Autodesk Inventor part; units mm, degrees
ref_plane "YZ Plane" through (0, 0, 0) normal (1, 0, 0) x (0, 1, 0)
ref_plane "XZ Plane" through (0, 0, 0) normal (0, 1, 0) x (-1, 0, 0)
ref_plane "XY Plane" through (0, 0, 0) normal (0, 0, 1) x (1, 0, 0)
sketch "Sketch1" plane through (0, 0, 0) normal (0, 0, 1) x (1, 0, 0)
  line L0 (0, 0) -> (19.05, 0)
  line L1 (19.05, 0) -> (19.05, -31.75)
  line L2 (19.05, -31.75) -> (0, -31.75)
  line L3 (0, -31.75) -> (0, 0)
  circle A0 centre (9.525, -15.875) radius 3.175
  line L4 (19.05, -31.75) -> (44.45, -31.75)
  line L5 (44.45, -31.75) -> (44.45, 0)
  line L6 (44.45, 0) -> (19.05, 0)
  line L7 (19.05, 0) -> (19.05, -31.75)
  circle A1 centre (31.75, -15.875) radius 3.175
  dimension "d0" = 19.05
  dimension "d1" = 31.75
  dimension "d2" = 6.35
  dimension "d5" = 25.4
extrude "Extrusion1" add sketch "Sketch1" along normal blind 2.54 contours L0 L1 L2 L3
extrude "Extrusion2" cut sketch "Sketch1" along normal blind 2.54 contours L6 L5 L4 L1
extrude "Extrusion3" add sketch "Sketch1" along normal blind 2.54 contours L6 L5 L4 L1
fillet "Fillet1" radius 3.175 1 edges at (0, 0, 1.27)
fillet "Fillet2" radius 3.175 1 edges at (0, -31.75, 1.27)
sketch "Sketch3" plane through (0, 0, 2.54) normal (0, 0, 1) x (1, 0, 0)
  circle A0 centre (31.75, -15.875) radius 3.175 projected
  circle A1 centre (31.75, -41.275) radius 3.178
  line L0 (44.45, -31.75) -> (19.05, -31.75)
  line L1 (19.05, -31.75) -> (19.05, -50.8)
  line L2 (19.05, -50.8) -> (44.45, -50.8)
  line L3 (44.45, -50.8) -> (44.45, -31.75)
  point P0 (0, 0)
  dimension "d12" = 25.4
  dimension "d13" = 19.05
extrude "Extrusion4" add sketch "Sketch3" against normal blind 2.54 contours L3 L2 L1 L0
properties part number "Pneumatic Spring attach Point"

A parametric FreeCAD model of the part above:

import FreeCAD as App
import Part
import Sketcher
from FreeCAD import Vector
Q = App.Units.Quantity


def edges_at(feature, points):
    """Names of the edges that pass closest to the given points."""
    edges = feature.Shape.Edges
    near = lambda p: min(range(len(edges)), key=lambda i: edges[i].distToShape(Part.Vertex(*p))[0])
    return sorted({f"Edge{near(p) + 1}" for p in points})

doc = App.newDocument("Part")
params = doc.addObject("Spreadsheet::Sheet", "Params")
for row, (alias, value) in enumerate([
    ("sketch1_diameter", "0.25 in"),
    ("sketch1_width", "0.75 in"),
    ("sketch1_height", "1.25 in"),
    ("pad1_length", "0.1 in"),
    ("sketch2_diameter", "0.25 in"),
    ("sketch2_width", "1 in"),
    ("sketch2_height", "1.25 in"),
    ("pocket1_length", "0.1 in"),
    ("sketch3_diameter", "0.25 in"),
    ("sketch3_width", "1 in"),
    ("sketch3_height", "1.25 in"),
    ("pad2_length", "0.1 in"),
    ("fillet_radius", "0.125 in"),
    ("fillet2_radius", "0.125 in"),
    ("sketch4_width", "1 in"),
    ("sketch4_height", "0.75 in"),
    ("pad3_length", "0.1 in"),
], start=1):
    params.set(f"A{row}", alias)
    params.set(f"B{row}", "=" + value)
    params.setAlias(f"B{row}", alias)

body = doc.addObject("PartDesign::Body", "Body")

# Sketch on XY plane
sketch1 = body.newObject("Sketcher::SketchObject", "Sketch")
sketch1.AttachmentSupport = (doc.getObject("XY_Plane"), [""])
sketch1.MapMode = "FlatFace"
sketch1.addGeometry([
    Part.LineSegment(Vector(19.05, 0, 0), Vector(0, 0, 0)),  # 0
    Part.LineSegment(Vector(0, 0, 0), Vector(0, -31.75, 0)),  # 1
    Part.LineSegment(Vector(0, -31.75, 0), Vector(19.05, -31.75, 0)),  # 2
    Part.LineSegment(Vector(19.05, -31.75, 0), Vector(19.05, 0, 0)),  # 3
    Part.Circle(Vector(9.525, -15.875, 0), Vector(0, 0, 1), 3.175),  # 4
], False)
sketch1.addConstraint([
    Sketcher.Constraint("Coincident", 0, 2, 1, 1),
    Sketcher.Constraint("Coincident", 1, 2, 2, 1),
    Sketcher.Constraint("Coincident", 2, 2, 3, 1),
    Sketcher.Constraint("Coincident", 3, 2, 0, 1),
    Sketcher.Constraint("Horizontal", 0),
    Sketcher.Constraint("Vertical", 1),
    Sketcher.Constraint("Horizontal", 2),
    Sketcher.Constraint("Vertical", 3),
    Sketcher.Constraint("Coincident", 0, 2, -1, 1),
    Sketcher.Constraint("Diameter", 4, Q("0.25 in")),
    Sketcher.Constraint("DistanceX", 0, 2, 0, 1, Q("0.75 in")),
    Sketcher.Constraint("DistanceY", 1, 2, 1, 1, Q("1.25 in")),
    Sketcher.Constraint("DistanceX", -1, 1, 4, 3, Q("0.375 in")),
    Sketcher.Constraint("DistanceY", 4, 3, -1, 1, Q("0.625 in")),
])
sketch1.setExpression("Constraints[9]", "Params.sketch1_diameter")
sketch1.setExpression("Constraints[10]", "Params.sketch1_width")
sketch1.setExpression("Constraints[11]", "Params.sketch1_height")
pad1 = body.newObject("PartDesign::Pad", "Pad")
pad1.Profile = sketch1
pad1.setExpression("Length", "Params.pad1_length")

# Sketch on XY plane
sketch2 = body.newObject("Sketcher::SketchObject", "Sketch001")
sketch2.AttachmentSupport = (doc.getObject("XY_Plane"), [""])
sketch2.MapMode = "FlatFace"
sketch2.addGeometry([
    Part.LineSegment(Vector(44.45, 0, 0), Vector(19.05, 0, 0)),  # 0
    Part.LineSegment(Vector(19.05, 0, 0), Vector(19.05, -31.75, 0)),  # 1
    Part.LineSegment(Vector(19.05, -31.75, 0), Vector(44.45, -31.75, 0)),  # 2
    Part.LineSegment(Vector(44.45, -31.75, 0), Vector(44.45, 0, 0)),  # 3
    Part.Circle(Vector(31.75, -15.875, 0), Vector(0, 0, 1), 3.175),  # 4
], False)
sketch2.addConstraint([
    Sketcher.Constraint("Coincident", 0, 2, 1, 1),
    Sketcher.Constraint("Coincident", 1, 2, 2, 1),
    Sketcher.Constraint("Coincident", 2, 2, 3, 1),
    Sketcher.Constraint("Coincident", 3, 2, 0, 1),
    Sketcher.Constraint("Horizontal", 0),
    Sketcher.Constraint("Vertical", 1),
    Sketcher.Constraint("Horizontal", 2),
    Sketcher.Constraint("Vertical", 3),
    Sketcher.Constraint("PointOnObject", 0, 2, -1),
    Sketcher.Constraint("Diameter", 4, Q("0.25 in")),
    Sketcher.Constraint("DistanceX", 0, 2, 0, 1, Q("1 in")),
    Sketcher.Constraint("DistanceY", 1, 2, 1, 1, Q("1.25 in")),
    Sketcher.Constraint("DistanceX", -1, 1, 4, 3, Q("1.25 in")),
    Sketcher.Constraint("DistanceX", -1, 1, 0, 2, Q("0.75 in")),
    Sketcher.Constraint("DistanceY", 4, 3, -1, 1, Q("0.625 in")),
])
sketch2.setExpression("Constraints[9]", "Params.sketch2_diameter")
sketch2.setExpression("Constraints[10]", "Params.sketch2_width")
sketch2.setExpression("Constraints[11]", "Params.sketch2_height")
pocket1 = body.newObject("PartDesign::Pocket", "Pocket")
pocket1.Profile = sketch2
pocket1.setExpression("Length", "Params.pocket1_length")
pocket1.Reversed = True

# Sketch on XY plane
sketch3 = body.newObject("Sketcher::SketchObject", "Sketch002")
sketch3.AttachmentSupport = (doc.getObject("XY_Plane"), [""])
sketch3.MapMode = "FlatFace"
sketch3.addGeometry([
    Part.LineSegment(Vector(44.45, 0, 0), Vector(19.05, 0, 0)),  # 0
    Part.LineSegment(Vector(19.05, 0, 0), Vector(19.05, -31.75, 0)),  # 1
    Part.LineSegment(Vector(19.05, -31.75, 0), Vector(44.45, -31.75, 0)),  # 2
    Part.LineSegment(Vector(44.45, -31.75, 0), Vector(44.45, 0, 0)),  # 3
    Part.Circle(Vector(31.75, -15.875, 0), Vector(0, 0, 1), 3.175),  # 4
], False)
sketch3.addConstraint([
    Sketcher.Constraint("Coincident", 0, 2, 1, 1),
    Sketcher.Constraint("Coincident", 1, 2, 2, 1),
    Sketcher.Constraint("Coincident", 2, 2, 3, 1),
    Sketcher.Constraint("Coincident", 3, 2, 0, 1),
    Sketcher.Constraint("Horizontal", 0),
    Sketcher.Constraint("Vertical", 1),
    Sketcher.Constraint("Horizontal", 2),
    Sketcher.Constraint("Vertical", 3),
    Sketcher.Constraint("PointOnObject", 0, 2, -1),
    Sketcher.Constraint("Diameter", 4, Q("0.25 in")),
    Sketcher.Constraint("DistanceX", 0, 2, 0, 1, Q("1 in")),
    Sketcher.Constraint("DistanceY", 1, 2, 1, 1, Q("1.25 in")),
    Sketcher.Constraint("DistanceX", -1, 1, 4, 3, Q("1.25 in")),
    Sketcher.Constraint("DistanceX", -1, 1, 0, 2, Q("0.75 in")),
    Sketcher.Constraint("DistanceY", 4, 3, -1, 1, Q("0.625 in")),
])
sketch3.setExpression("Constraints[9]", "Params.sketch3_diameter")
sketch3.setExpression("Constraints[10]", "Params.sketch3_width")
sketch3.setExpression("Constraints[11]", "Params.sketch3_height")
pad2 = body.newObject("PartDesign::Pad", "Pad001")
pad2.Profile = sketch3
pad2.setExpression("Length", "Params.pad2_length")
doc.recompute()

fillet = body.newObject("PartDesign::Fillet", "Fillet")
fillet.Base = (pad2, edges_at(pad2, [(0, 0, 1.27)]))
fillet.setExpression("Radius", "Params.fillet_radius")
doc.recompute()

fillet2 = body.newObject("PartDesign::Fillet", "Fillet001")
fillet2.Base = (fillet, edges_at(fillet, [(0, -31.75, 1.27)]))
fillet2.setExpression("Radius", "Params.fillet2_radius")

# Sketch on XY plane
sketch4 = body.newObject("Sketcher::SketchObject", "Sketch003")
sketch4.AttachmentSupport = (doc.getObject("XY_Plane"), [""])
sketch4.MapMode = "FlatFace"
sketch4.AttachmentOffset = App.Placement(Vector(0, 0, 0.1 * 25.4), App.Rotation())
sketch4.addGeometry([
    Part.LineSegment(Vector(44.45, -50.8, 0), Vector(44.45, -31.75, 0)),  # 0
    Part.LineSegment(Vector(44.45, -31.75, 0), Vector(19.05, -31.75, 0)),  # 1
    Part.LineSegment(Vector(19.05, -31.75, 0), Vector(19.05, -50.8, 0)),  # 2
    Part.LineSegment(Vector(19.05, -50.8, 0), Vector(44.45, -50.8, 0)),  # 3
    Part.Circle(Vector(31.75, -41.275, 0), Vector(0, 0, 1), 3.178),  # 4
], False)
sketch4.addConstraint([
    Sketcher.Constraint("Coincident", 0, 2, 1, 1),
    Sketcher.Constraint("Coincident", 1, 2, 2, 1),
    Sketcher.Constraint("Coincident", 2, 2, 3, 1),
    Sketcher.Constraint("Coincident", 3, 2, 0, 1),
    Sketcher.Constraint("Vertical", 0),
    Sketcher.Constraint("Horizontal", 1),
    Sketcher.Constraint("Vertical", 2),
    Sketcher.Constraint("Horizontal", 3),
    Sketcher.Constraint("DistanceX", 1, 2, 1, 1, Q("1 in")),
    Sketcher.Constraint("DistanceY", 0, 1, 0, 2, Q("0.75 in")),
    Sketcher.Constraint("DistanceX", -1, 1, 1, 2, Q("0.75 in")),
    Sketcher.Constraint("DistanceY", 2, 2, -1, 1, Q("2 in")),
    Sketcher.Constraint("DistanceX", 4, 3, 0, 2, Q("0.5 in")),
    Sketcher.Constraint("Diameter", 4, Q("6.356 mm")),
    Sketcher.Constraint("DistanceY", 4, 3, -1, 1, Q("1.625 in")),
])
sketch4.setExpression("Constraints[8]", "Params.sketch4_width")
sketch4.setExpression("Constraints[9]", "Params.sketch4_height")
pad3 = body.newObject("PartDesign::Pad", "Pad002")
pad3.Profile = sketch4
pad3.setExpression("Length", "Params.pad3_length")
pad3.Reversed = True

doc.recompute()
